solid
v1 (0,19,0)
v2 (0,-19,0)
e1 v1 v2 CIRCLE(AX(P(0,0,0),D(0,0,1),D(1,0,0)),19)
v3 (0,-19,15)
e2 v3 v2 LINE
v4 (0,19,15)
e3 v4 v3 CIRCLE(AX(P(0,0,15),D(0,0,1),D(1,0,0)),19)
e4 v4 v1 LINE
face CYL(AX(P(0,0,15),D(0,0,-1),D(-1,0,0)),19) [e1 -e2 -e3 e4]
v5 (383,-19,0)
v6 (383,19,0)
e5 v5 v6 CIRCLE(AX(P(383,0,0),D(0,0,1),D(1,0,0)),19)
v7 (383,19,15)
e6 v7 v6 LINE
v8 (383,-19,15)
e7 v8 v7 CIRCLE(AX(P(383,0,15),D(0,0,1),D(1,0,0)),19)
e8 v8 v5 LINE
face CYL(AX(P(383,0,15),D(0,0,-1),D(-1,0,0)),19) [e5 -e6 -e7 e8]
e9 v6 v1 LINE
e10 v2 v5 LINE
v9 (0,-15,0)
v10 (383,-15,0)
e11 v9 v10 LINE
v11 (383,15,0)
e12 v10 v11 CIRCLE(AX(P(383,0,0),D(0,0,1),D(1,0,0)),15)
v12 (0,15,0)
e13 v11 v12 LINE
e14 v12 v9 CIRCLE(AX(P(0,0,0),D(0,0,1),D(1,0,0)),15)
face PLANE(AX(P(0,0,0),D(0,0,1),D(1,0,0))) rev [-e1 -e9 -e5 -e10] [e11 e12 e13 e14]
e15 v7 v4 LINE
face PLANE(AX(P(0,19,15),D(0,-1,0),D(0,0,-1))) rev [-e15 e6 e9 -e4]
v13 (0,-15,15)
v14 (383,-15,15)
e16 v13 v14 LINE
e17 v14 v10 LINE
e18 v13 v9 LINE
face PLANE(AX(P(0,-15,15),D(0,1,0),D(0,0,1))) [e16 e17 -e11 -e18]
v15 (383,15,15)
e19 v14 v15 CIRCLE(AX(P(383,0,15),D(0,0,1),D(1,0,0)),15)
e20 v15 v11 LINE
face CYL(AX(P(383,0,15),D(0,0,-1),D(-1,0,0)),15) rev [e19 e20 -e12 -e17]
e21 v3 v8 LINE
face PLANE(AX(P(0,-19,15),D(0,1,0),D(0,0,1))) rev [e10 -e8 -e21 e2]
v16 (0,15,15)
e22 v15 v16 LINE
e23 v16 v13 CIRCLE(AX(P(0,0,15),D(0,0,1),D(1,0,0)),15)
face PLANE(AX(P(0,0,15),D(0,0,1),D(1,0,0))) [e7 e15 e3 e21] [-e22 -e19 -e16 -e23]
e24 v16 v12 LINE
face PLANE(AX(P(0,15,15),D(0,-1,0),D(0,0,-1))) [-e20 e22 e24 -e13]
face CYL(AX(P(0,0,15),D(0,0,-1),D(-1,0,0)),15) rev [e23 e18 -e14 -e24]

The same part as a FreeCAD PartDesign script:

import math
import FreeCAD as App
import Part
import Sketcher
Q = App.Units.Quantity

doc = App.newDocument("Part")
body = doc.addObject("PartDesign::Body", "Body")

sketch1 = body.newObject("Sketcher::SketchObject", "Sketch")
sketch1.AttachmentSupport = (doc.getObject("XY_Plane"), [""])
sketch1.MapMode = "FlatFace"
sketch1.addGeometry([
    Part.LineSegment(App.Vector(383, 19, 0), App.Vector(0, 19, 0)),
    Part.ArcOfCircle(Part.Circle(App.Vector(0, 0, 0), App.Vector(0, 0, 1), 19), math.radians(90), math.radians(270)),
    Part.LineSegment(App.Vector(0, -19, 0), App.Vector(383, -19, 0)),
    Part.ArcOfCircle(Part.Circle(App.Vector(383, 0, 0), App.Vector(0, 0, 1), 19), math.radians(-90), math.radians(90)),
    Part.LineSegment(App.Vector(0, 15, 0), App.Vector(383, 15, 0)),
    Part.ArcOfCircle(Part.Circle(App.Vector(383, 0, 0), App.Vector(0, 0, 1), 15), math.radians(-90), math.radians(90)),
    Part.LineSegment(App.Vector(383, -15, 0), App.Vector(0, -15, 0)),
    Part.ArcOfCircle(Part.Circle(App.Vector(0, 0, 0), App.Vector(0, 0, 1), 15), math.radians(90), math.radians(270)),
], False)
sketch1.addConstraint([
    Sketcher.Constraint("Tangent", 0, 2, 1, 1),
    Sketcher.Constraint("Tangent", 1, 2, 2, 1),
    Sketcher.Constraint("Tangent", 2, 2, 3, 1),
    Sketcher.Constraint("Tangent", 3, 2, 0, 1),
    Sketcher.Constraint("Tangent", 4, 2, 5, 2),
    Sketcher.Constraint("Tangent", 5, 1, 6, 1),
    Sketcher.Constraint("Tangent", 6, 2, 7, 2),
    Sketcher.Constraint("Tangent", 7, 1, 4, 1),
    Sketcher.Constraint("Horizontal", 0),
    Sketcher.Constraint("Horizontal", 2),
    Sketcher.Constraint("Horizontal", 4),
    Sketcher.Constraint("Horizontal", 6),
    Sketcher.Constraint("Coincident", 1, 3, -1, 1),
    Sketcher.Constraint("Coincident", 7, 3, -1, 1),
    Sketcher.Constraint("Vertical", 5, 3, 2, 2),
    Sketcher.Constraint("Radius", 1, Q("19 mm")),
    Sketcher.Constraint("Radius", 5, Q("15 mm")),
    Sketcher.Constraint("DistanceX", 0, 2, 0, 1, Q("383 mm")),
])
pad1 = body.newObject("PartDesign::Pad", "Pad")
pad1.Profile = sketch1
pad1.Length = 15

doc.recompute()
